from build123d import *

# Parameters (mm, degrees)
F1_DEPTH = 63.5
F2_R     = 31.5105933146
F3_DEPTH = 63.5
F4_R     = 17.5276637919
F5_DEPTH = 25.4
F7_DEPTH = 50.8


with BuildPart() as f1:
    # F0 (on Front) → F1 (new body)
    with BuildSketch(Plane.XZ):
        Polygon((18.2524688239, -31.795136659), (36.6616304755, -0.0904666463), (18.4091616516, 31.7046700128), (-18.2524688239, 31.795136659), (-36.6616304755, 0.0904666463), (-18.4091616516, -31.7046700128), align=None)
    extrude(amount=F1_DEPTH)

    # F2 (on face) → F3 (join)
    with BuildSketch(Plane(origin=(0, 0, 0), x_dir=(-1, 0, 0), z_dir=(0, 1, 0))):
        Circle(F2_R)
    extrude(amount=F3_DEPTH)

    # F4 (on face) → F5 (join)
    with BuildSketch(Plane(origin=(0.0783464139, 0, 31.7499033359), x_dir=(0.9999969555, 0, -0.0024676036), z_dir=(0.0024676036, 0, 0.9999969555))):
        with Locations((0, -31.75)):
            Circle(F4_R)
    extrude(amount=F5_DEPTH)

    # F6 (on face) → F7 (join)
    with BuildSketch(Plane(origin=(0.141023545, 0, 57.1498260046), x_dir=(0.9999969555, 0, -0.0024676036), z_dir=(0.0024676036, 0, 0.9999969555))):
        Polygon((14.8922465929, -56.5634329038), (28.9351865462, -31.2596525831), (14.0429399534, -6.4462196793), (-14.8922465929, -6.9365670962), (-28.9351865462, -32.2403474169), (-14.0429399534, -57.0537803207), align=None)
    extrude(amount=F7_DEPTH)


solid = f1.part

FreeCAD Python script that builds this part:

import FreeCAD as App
import Part
import Sketcher

V = App.Vector
Q = App.Units.Quantity


def add_polygon(sketch, points):
    """Adds a closed chain of lines whose ends are joined by coincident constraints."""
    first, n = sketch.GeometryCount, len(points)
    for a, b in zip(points, points[1:] + points[:1]):
        sketch.addGeometry(Part.LineSegment(App.Vector(*a, 0), App.Vector(*b, 0)), False)
    for i in range(n):
        sketch.addConstraint(Sketcher.Constraint("Coincident", first + i, 2, first + (i + 1) % n, 1))

doc = App.newDocument("Part")
body = doc.addObject("PartDesign::Body", "Body")

# Sketch on XZ plane
sketch1 = body.newObject("Sketcher::SketchObject", "Sketch")
sketch1.AttachmentSupport = (doc.getObject("XZ_Plane"), [""])
sketch1.MapMode = "FlatFace"
add_polygon(sketch1, [(18.252469, -31.795137), (36.66163, -0.090467), (18.409162, 31.70467), (-18.252469, 31.795137), (-36.66163, 0.090467), (-18.409162, -31.70467)])  # lines 0-5
sketch1.addConstraint(Sketcher.Constraint("Symmetric", 0, 2, 3, 2, -1, 1))
sketch1.addConstraint(Sketcher.Constraint("Symmetric", 1, 2, 4, 2, -1, 1))
sketch1.addConstraint(Sketcher.Constraint("Symmetric", 2, 2, 5, 2, -1, 1))
sketch1.addConstraint(Sketcher.Constraint("Equal", 0, 1))
sketch1.addConstraint(Sketcher.Constraint("Equal", 1, 2))
sketch1.addConstraint(Sketcher.Constraint("DistanceX", 2, 2, 0, 2, Q("54.914099 mm")))
sketch1.addConstraint(Sketcher.Constraint("DistanceX", -1, 1, 0, 2, Q("36.66163 mm")))
sketch1.addConstraint(Sketcher.Constraint("DistanceX", -1, 1, 1, 2, Q("18.409162 mm")))
sketch1.addConstraint(Sketcher.Constraint("DistanceY", -1, 1, 1, 2, Q("31.70467 mm")))
pad1 = body.newObject("PartDesign::Pad", "Pad")
pad1.Profile = sketch1
pad1.Length = Q("2.5 in")

# Sketch on XZ plane
sketch2 = body.newObject("Sketcher::SketchObject", "Sketch001")
sketch2.AttachmentSupport = (doc.getObject("XZ_Plane"), [""])
sketch2.MapMode = "FlatFace"
sketch2.addGeometry(Part.Circle(V(0, 0, 0), V(0, 0, 1), 31.510593), False)
sketch2.addConstraint(Sketcher.Constraint("Coincident", 0, 3, -1, 1))
sketch2.addConstraint(Sketcher.Constraint("Diameter", 0, Q("63.021187 mm")))
pad2 = body.newObject("PartDesign::Pad", "Pad001")
pad2.Profile = sketch2
pad2.Length = Q("2.5 in")
pad2.Reversed = True

# Sketch on an angled plane
sketch3 = body.newObject("Sketcher::SketchObject", "Sketch002")
sketch3.Placement = App.Placement(V(0.078346, 0, 31.749903), App.Rotation(V(0.999996955, 0, -0.002467604), V(0, 0.999999999, 0), V(0.002467604, 0, 0.999996955), "ZXY"))
sketch3.addGeometry(Part.Circle(V(0, -31.75, 0), V(0, 0, 1), 17.527664), False)
sketch3.addConstraint(Sketcher.Constraint("PointOnObject", 0, 3, -2))
sketch3.addConstraint(Sketcher.Constraint("DistanceY", 0, 3, -1, 1, Q("1.25 in")))
sketch3.addConstraint(Sketcher.Constraint("Diameter", 0, Q("35.055328 mm")))
pad3 = body.newObject("PartDesign::Pad", "Pad002")
pad3.Profile = sketch3
pad3.Length = Q("1 in")

# Sketch on an angled plane
sketch4 = body.newObject("Sketcher::SketchObject", "Sketch003")
sketch4.Placement = App.Placement(V(0.141024, 0, 57.149826), App.Rotation(V(0.999996955, 0, -0.002467604), V(0, 0.999999999, 0), V(0.002467604, 0, 0.999996955), "ZXY"))
add_polygon(sketch4, [(14.892247, -56.563433), (28.935187, -31.259653), (14.04294, -6.44622), (-14.892247, -6.936567), (-28.935187, -32.240347), (-14.04294, -57.05378)])  # lines 0-5
sketch4.addConstraint(Sketcher.Constraint("Parallel", 0, 3))
sketch4.addConstraint(Sketcher.Constraint("Parallel", 1, 4))
sketch4.addConstraint(Sketcher.Constraint("Parallel", 2, 5))
sketch4.addConstraint(Sketcher.Constraint("Equal", 0, 1))
sketch4.addConstraint(Sketcher.Constraint("Equal", 1, 2))
sketch4.addConstraint(Sketcher.Constraint("Equal", 2, 3))
sketch4.addConstraint(Sketcher.Constraint("Distance", 0, Q("28.939341 mm")))
sketch4.addConstraint(Sketcher.Constraint("DistanceX", -1, 1, 1, 2, Q("14.04294 mm")))
sketch4.addConstraint(Sketcher.Constraint("DistanceY", 1, 2, -1, 1, Q("6.44622 mm")))
sketch4.addConstraint(Sketcher.Constraint("DistanceX", 4, 2, -1, 1, Q("14.04294 mm")))
sketch4.addConstraint(Sketcher.Constraint("DistanceY", 4, 2, -1, 1, Q("57.05378 mm")))
sketch4.addConstraint(Sketcher.Constraint("DistanceX", 3, 2, 2, 2, Q("14.04294 mm")))
pad4 = body.newObject("PartDesign::Pad", "Pad003")
pad4.Profile = sketch4
pad4.Length = Q("2 in")

doc.recompute()
